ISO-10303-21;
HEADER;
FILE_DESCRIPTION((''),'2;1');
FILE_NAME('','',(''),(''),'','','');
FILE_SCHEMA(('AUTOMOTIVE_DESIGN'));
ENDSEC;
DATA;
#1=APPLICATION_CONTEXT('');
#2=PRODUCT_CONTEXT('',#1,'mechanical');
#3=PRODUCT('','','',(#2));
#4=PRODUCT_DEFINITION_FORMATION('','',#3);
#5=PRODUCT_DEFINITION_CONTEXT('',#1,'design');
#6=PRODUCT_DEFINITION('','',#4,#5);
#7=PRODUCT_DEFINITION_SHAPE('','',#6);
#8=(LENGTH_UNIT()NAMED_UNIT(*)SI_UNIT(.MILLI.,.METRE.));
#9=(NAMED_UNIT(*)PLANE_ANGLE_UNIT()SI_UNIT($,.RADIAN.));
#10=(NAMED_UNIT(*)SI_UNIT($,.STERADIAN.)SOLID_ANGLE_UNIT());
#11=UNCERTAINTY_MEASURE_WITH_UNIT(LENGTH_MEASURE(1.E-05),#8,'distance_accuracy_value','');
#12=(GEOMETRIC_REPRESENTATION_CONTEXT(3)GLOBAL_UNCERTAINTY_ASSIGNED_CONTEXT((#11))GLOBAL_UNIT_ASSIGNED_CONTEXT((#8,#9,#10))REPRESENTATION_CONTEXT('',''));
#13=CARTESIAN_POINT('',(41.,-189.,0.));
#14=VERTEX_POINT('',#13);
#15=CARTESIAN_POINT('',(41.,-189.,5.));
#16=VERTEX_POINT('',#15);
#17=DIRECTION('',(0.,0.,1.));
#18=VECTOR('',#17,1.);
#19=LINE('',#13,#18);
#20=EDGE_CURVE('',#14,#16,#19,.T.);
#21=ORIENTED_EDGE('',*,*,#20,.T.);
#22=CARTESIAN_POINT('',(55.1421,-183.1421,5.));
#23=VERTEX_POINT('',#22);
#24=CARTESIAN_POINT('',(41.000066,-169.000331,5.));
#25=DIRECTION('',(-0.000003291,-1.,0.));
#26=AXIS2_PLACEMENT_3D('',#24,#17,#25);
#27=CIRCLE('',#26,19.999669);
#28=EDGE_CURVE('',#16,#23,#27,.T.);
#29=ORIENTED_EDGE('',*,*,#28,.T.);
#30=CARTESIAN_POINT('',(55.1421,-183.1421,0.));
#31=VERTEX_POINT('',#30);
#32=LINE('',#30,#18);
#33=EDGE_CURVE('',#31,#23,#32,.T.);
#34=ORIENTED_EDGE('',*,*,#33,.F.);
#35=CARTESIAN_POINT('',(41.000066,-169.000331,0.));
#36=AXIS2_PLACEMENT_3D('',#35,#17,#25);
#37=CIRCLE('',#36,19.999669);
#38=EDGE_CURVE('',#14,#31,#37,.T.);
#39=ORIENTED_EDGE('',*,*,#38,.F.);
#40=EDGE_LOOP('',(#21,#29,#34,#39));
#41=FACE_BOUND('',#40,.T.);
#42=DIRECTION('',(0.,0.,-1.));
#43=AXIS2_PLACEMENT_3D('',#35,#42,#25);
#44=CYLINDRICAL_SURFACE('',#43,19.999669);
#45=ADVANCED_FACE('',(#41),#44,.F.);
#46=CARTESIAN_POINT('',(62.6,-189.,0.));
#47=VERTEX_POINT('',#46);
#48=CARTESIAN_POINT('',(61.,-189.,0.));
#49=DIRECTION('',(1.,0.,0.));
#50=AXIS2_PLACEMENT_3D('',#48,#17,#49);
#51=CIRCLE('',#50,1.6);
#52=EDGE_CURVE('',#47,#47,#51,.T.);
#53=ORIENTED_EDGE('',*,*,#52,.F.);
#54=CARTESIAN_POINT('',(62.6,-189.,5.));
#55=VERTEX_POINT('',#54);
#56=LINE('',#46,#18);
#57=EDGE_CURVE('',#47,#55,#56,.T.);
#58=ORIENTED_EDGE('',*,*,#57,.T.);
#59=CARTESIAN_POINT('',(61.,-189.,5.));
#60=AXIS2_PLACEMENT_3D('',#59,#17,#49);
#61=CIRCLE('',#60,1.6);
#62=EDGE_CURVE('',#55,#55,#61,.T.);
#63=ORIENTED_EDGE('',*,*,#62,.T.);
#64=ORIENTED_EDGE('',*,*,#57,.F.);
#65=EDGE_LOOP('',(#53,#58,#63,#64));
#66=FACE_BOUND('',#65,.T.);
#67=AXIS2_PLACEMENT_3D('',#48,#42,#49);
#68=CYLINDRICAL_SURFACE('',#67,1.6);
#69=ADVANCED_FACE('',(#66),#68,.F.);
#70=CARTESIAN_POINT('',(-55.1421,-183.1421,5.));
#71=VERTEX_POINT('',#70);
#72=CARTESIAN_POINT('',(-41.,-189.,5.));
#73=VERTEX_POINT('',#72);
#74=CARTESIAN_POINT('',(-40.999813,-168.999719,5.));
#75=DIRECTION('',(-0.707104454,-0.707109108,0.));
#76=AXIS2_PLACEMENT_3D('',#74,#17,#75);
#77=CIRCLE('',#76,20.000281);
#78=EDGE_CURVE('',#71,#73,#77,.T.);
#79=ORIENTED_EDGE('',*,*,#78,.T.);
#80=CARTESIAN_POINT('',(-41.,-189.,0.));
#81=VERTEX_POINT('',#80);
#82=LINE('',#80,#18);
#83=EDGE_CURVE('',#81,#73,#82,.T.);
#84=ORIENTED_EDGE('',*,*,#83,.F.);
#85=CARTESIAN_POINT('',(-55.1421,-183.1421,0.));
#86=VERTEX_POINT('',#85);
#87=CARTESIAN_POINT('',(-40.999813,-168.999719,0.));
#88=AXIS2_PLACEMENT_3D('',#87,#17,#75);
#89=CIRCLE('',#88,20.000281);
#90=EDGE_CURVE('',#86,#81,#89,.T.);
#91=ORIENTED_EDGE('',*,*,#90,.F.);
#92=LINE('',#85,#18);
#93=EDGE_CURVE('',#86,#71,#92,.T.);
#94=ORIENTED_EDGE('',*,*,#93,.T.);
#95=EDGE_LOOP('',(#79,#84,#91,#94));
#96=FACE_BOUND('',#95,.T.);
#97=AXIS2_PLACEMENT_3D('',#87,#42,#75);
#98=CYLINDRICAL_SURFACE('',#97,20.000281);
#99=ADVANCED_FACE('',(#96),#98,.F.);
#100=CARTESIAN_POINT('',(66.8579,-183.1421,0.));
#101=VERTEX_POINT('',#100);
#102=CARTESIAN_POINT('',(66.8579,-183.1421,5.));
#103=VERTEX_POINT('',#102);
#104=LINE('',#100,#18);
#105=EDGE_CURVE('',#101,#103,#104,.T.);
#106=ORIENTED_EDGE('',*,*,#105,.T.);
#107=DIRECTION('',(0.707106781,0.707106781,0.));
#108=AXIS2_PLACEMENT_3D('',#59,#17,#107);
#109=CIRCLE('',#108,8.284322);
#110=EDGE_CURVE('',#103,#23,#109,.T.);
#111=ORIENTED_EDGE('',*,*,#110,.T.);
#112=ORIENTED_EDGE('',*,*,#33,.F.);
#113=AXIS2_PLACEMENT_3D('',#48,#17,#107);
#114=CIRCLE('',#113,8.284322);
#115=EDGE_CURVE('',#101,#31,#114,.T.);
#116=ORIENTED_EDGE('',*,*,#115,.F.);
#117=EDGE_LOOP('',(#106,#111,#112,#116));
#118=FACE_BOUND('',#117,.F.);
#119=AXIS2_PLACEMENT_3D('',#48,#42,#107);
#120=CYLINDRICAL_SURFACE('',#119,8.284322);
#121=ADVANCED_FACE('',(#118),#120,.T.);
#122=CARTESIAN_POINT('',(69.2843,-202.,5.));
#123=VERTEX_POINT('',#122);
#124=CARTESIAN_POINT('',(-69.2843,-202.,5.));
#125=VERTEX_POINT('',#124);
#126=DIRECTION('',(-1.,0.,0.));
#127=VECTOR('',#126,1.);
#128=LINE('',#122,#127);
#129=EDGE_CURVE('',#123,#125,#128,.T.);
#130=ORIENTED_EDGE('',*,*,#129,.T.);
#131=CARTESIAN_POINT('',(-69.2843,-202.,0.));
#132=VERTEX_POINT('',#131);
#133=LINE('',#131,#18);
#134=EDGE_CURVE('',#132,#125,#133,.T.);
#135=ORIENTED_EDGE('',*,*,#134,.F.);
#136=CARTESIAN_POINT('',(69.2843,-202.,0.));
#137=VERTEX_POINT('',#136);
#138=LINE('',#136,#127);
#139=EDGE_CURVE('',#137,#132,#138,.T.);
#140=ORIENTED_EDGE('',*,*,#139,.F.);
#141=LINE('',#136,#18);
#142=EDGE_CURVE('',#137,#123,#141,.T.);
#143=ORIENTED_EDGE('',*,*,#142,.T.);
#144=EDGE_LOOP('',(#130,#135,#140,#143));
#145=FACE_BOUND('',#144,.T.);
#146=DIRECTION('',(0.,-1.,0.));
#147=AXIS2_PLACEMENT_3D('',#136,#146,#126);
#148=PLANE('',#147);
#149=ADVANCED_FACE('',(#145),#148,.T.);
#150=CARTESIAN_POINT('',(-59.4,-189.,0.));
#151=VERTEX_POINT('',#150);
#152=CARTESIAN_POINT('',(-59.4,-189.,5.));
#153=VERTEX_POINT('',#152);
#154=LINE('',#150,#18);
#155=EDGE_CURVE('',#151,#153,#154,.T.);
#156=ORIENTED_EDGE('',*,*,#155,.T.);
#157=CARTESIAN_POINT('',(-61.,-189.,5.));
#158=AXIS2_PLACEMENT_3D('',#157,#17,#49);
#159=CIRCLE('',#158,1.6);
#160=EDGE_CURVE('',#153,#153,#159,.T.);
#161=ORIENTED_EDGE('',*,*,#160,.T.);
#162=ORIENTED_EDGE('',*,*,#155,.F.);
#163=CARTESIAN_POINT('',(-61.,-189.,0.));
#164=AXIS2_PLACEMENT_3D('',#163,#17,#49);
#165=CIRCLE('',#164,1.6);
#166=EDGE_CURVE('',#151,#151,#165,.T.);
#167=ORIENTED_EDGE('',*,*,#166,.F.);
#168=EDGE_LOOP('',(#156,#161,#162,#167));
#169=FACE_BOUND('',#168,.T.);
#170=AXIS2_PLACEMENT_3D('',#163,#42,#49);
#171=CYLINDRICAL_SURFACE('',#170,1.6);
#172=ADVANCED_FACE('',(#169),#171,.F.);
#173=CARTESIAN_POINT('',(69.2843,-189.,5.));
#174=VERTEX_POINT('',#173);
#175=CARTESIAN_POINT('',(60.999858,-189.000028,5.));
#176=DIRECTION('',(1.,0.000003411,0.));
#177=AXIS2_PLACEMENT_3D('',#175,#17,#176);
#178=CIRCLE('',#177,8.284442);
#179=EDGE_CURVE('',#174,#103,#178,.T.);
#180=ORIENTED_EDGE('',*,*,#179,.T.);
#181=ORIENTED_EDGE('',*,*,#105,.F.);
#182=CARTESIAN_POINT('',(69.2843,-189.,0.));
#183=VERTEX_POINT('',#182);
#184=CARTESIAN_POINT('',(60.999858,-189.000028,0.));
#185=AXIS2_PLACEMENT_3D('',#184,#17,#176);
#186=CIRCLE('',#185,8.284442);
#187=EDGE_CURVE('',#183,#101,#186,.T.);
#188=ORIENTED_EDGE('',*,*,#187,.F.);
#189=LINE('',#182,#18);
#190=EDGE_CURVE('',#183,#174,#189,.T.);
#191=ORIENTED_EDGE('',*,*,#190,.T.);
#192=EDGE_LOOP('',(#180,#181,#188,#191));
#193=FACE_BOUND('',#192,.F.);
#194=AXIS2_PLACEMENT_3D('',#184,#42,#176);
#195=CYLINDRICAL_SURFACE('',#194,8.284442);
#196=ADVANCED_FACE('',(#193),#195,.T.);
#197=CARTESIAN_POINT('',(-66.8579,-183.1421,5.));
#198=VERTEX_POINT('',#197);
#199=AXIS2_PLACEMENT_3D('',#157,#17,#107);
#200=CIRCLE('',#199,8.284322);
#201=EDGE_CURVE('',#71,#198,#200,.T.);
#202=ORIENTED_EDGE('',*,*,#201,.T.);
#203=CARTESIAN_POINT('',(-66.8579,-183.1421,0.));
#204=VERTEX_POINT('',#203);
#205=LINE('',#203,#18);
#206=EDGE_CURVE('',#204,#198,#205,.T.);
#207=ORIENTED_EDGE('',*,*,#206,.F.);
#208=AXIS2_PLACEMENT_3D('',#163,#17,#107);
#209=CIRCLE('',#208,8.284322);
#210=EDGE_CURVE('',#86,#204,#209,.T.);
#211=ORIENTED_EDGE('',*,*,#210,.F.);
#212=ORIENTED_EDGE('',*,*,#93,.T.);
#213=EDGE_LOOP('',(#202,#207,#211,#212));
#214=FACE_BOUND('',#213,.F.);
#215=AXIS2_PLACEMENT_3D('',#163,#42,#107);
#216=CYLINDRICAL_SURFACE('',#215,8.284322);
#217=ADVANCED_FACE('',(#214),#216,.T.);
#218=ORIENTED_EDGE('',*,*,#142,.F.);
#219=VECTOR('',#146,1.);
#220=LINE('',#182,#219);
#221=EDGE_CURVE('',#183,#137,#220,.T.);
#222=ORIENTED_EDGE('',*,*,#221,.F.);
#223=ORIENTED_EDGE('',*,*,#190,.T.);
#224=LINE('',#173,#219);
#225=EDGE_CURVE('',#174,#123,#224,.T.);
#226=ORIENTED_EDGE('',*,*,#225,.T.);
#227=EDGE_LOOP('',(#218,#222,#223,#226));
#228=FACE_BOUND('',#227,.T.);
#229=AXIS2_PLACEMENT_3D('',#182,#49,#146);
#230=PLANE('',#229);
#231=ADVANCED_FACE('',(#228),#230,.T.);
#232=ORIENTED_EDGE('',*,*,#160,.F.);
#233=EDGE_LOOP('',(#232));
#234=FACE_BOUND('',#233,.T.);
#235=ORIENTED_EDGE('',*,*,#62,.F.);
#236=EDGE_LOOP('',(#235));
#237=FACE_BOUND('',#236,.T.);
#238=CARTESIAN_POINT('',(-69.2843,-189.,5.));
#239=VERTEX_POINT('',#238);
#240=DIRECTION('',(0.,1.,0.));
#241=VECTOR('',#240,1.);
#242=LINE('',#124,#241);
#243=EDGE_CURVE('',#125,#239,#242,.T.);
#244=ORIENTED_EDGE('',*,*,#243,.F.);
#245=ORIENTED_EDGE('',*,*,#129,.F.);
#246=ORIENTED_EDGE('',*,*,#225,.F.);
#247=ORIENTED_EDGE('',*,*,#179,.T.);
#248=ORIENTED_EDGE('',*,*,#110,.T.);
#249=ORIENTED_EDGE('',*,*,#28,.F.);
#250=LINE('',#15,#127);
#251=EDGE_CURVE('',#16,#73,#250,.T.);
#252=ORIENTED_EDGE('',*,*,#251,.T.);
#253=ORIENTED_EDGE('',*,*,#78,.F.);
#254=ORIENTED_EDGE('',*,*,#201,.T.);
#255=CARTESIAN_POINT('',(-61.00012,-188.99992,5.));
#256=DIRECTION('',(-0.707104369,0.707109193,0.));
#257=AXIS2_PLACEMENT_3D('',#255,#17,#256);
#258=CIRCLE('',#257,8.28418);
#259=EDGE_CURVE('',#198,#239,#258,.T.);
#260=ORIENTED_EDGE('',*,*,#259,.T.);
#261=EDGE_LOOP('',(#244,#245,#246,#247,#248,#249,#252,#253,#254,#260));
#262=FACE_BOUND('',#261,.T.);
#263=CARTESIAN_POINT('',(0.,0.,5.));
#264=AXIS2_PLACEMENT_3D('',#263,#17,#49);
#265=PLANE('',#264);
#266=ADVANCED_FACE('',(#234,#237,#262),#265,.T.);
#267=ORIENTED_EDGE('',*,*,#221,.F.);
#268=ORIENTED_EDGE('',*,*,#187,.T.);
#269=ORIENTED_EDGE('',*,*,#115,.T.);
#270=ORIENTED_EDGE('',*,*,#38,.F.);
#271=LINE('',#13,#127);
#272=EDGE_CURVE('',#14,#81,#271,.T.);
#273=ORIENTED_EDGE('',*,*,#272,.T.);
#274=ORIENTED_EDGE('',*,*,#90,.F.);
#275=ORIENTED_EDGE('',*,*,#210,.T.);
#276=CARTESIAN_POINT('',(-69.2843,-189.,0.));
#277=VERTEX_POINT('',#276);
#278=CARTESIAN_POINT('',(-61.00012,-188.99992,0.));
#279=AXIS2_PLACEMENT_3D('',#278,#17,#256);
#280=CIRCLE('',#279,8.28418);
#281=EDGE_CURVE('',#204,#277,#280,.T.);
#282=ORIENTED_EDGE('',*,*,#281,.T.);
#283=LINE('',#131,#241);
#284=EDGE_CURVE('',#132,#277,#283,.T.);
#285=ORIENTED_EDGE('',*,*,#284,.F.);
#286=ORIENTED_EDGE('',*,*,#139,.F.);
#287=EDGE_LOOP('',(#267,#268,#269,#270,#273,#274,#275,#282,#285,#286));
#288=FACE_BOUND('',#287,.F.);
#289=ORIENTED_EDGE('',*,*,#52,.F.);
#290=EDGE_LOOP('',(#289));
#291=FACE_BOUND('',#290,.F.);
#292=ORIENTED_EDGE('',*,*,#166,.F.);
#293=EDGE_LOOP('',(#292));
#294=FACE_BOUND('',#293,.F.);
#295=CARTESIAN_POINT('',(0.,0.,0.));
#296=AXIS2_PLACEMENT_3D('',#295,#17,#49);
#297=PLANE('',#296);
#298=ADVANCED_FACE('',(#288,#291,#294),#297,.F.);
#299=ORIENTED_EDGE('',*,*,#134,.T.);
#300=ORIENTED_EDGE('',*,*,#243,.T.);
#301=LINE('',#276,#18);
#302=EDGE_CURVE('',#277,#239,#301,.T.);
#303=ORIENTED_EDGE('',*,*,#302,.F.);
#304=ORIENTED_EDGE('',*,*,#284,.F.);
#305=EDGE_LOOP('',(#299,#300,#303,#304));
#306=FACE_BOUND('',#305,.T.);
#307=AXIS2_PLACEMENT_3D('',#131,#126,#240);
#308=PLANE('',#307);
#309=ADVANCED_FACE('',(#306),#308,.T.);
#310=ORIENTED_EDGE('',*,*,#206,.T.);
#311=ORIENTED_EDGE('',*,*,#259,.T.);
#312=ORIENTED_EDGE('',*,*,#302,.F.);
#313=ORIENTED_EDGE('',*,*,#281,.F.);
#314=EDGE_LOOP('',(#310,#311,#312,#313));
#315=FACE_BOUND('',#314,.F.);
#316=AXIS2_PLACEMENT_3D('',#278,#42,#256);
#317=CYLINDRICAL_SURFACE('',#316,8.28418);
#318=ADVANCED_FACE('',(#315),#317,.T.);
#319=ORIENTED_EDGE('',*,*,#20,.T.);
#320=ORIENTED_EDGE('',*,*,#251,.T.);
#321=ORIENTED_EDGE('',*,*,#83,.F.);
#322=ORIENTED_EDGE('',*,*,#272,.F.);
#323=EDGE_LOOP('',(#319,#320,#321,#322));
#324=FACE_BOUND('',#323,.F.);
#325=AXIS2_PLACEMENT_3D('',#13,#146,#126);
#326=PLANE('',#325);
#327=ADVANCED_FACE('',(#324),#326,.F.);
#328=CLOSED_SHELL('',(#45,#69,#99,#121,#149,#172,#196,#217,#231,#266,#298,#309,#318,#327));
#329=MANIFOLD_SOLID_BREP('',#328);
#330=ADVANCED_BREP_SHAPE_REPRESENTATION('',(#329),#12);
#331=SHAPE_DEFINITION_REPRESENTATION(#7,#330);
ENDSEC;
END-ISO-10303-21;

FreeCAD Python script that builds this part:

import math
import FreeCAD as App
import Part
import Sketcher

V = App.Vector

doc = App.newDocument("Part")
params = doc.addObject("Spreadsheet::Sheet", "Params")
for row, (alias, value) in enumerate([
    ("sketch1_radius", "20 mm"),
    ("sketch1_diameter", "3.2 mm"),
    ("sketch1_width", "82 mm"),
    ("sketch1_height", "13 mm"),
    ("pad1_length", "5 mm"),
], start=1):
    params.set(f"A{row}", alias)
    params.set(f"B{row}", "=" + value)
    params.setAlias(f"B{row}", alias)

body = doc.addObject("PartDesign::Body", "Body")

# Sketch on XY plane
sketch1 = body.newObject("Sketcher::SketchObject", "Sketch")
sketch1.AttachmentSupport = (doc.getObject("XY_Plane"), [""])
sketch1.MapMode = "FlatFace"
sketch1.addGeometry([
    Part.ArcOfCircle(Part.Circle(V(61, -189, 0), V(0, 0, 1), 8.3), math.radians(0), math.radians(45)),  # 0
    Part.ArcOfCircle(Part.Circle(V(61, -189, 0), V(0, 0, 1), 8.3), math.radians(45), math.radians(135)),  # 1
    Part.ArcOfCircle(Part.Circle(V(41, -169, 0), V(0, 0, 1), 20), math.radians(-90), math.radians(-45)),  # 2
    Part.LineSegment(V(41, -189, 0), V(-41, -189, 0)),  # 3
    Part.ArcOfCircle(Part.Circle(V(-41, -169, 0), V(0, 0, 1), 20), math.radians(-135), math.radians(-90)),  # 4
    Part.ArcOfCircle(Part.Circle(V(-61, -189, 0), V(0, 0, 1), 8.3), math.radians(45), math.radians(135)),  # 5
    Part.ArcOfCircle(Part.Circle(V(-61, -189, 0), V(0, 0, 1), 8.3), math.radians(135), math.radians(180)),  # 6
    Part.LineSegment(V(-69.3, -189, 0), V(-69.3, -202, 0)),  # 7
    Part.LineSegment(V(-69.3, -202, 0), V(69.3, -202, 0)),  # 8
    Part.LineSegment(V(69.3, -202, 0), V(69.3, -189, 0)),  # 9
    Part.Circle(V(-61, -189, 0), V(0, 0, 1), 1.6),  # 10
    Part.Circle(V(61, -189, 0), V(0, 0, 1), 1.6),  # 11
], False)
sketch1.addConstraint([
    Sketcher.Constraint("Tangent", 0, 2, 1, 1),
    Sketcher.Constraint("Tangent", 1, 2, 2, 2),
    Sketcher.Constraint("Tangent", 2, 1, 3, 1),
    Sketcher.Constraint("Tangent", 3, 2, 4, 2),
    Sketcher.Constraint("Tangent", 4, 1, 5, 1),
    Sketcher.Constraint("Tangent", 5, 2, 6, 1),
    Sketcher.Constraint("Tangent", 6, 2, 7, 1),
    Sketcher.Constraint("Coincident", 7, 2, 8, 1),
    Sketcher.Constraint("Coincident", 8, 2, 9, 1),
    Sketcher.Constraint("Tangent", 9, 2, 0, 1),
    Sketcher.Constraint("Horizontal", 3),
    Sketcher.Constraint("Vertical", 7),
    Sketcher.Constraint("Horizontal", 8),
    Sketcher.Constraint("Vertical", 9),
    Sketcher.Constraint("Coincident", 10, 3, 5, 3),
    Sketcher.Constraint("Coincident", 11, 3, 0, 3),
    Sketcher.Constraint("Equal", 0, 1),
    Sketcher.Constraint("Equal", 2, 4),
    Sketcher.Constraint("Equal", 1, 5),
    Sketcher.Constraint("Equal", 5, 6),
    Sketcher.Constraint("Equal", 10, 11),
    Sketcher.Constraint("Symmetric", 0, 3, 5, 3, -2),
    Sketcher.Constraint("Horizontal", 0, 2, 1, 2),
    Sketcher.Constraint("Horizontal", 11, 3, 2, 1),
    Sketcher.Constraint("Horizontal", 4, 1, 5, 2),
    Sketcher.Constraint("Radius", 2, 20.0),
    Sketcher.Constraint("Diameter", 10, 3.2),
    Sketcher.Constraint("DistanceX", 3, 2, 3, 1, 82.0),
    Sketcher.Constraint("DistanceY", 7, 2, 7, 1, 13.0),
    Sketcher.Constraint("DistanceX", -1, 1, 0, 3, 61.0),
    Sketcher.Constraint("DistanceY", 0, 3, -1, 1, 189.0),
])
sketch1.setExpression("Constraints[25]", "Params.sketch1_radius")
sketch1.setExpression("Constraints[26]", "Params.sketch1_diameter")
sketch1.setExpression("Constraints[27]", "Params.sketch1_width")
sketch1.setExpression("Constraints[28]", "Params.sketch1_height")
pad1 = body.newObject("PartDesign::Pad", "Pad")
pad1.Profile = sketch1
pad1.setExpression("Length", "Params.pad1_length")

doc.recompute()
